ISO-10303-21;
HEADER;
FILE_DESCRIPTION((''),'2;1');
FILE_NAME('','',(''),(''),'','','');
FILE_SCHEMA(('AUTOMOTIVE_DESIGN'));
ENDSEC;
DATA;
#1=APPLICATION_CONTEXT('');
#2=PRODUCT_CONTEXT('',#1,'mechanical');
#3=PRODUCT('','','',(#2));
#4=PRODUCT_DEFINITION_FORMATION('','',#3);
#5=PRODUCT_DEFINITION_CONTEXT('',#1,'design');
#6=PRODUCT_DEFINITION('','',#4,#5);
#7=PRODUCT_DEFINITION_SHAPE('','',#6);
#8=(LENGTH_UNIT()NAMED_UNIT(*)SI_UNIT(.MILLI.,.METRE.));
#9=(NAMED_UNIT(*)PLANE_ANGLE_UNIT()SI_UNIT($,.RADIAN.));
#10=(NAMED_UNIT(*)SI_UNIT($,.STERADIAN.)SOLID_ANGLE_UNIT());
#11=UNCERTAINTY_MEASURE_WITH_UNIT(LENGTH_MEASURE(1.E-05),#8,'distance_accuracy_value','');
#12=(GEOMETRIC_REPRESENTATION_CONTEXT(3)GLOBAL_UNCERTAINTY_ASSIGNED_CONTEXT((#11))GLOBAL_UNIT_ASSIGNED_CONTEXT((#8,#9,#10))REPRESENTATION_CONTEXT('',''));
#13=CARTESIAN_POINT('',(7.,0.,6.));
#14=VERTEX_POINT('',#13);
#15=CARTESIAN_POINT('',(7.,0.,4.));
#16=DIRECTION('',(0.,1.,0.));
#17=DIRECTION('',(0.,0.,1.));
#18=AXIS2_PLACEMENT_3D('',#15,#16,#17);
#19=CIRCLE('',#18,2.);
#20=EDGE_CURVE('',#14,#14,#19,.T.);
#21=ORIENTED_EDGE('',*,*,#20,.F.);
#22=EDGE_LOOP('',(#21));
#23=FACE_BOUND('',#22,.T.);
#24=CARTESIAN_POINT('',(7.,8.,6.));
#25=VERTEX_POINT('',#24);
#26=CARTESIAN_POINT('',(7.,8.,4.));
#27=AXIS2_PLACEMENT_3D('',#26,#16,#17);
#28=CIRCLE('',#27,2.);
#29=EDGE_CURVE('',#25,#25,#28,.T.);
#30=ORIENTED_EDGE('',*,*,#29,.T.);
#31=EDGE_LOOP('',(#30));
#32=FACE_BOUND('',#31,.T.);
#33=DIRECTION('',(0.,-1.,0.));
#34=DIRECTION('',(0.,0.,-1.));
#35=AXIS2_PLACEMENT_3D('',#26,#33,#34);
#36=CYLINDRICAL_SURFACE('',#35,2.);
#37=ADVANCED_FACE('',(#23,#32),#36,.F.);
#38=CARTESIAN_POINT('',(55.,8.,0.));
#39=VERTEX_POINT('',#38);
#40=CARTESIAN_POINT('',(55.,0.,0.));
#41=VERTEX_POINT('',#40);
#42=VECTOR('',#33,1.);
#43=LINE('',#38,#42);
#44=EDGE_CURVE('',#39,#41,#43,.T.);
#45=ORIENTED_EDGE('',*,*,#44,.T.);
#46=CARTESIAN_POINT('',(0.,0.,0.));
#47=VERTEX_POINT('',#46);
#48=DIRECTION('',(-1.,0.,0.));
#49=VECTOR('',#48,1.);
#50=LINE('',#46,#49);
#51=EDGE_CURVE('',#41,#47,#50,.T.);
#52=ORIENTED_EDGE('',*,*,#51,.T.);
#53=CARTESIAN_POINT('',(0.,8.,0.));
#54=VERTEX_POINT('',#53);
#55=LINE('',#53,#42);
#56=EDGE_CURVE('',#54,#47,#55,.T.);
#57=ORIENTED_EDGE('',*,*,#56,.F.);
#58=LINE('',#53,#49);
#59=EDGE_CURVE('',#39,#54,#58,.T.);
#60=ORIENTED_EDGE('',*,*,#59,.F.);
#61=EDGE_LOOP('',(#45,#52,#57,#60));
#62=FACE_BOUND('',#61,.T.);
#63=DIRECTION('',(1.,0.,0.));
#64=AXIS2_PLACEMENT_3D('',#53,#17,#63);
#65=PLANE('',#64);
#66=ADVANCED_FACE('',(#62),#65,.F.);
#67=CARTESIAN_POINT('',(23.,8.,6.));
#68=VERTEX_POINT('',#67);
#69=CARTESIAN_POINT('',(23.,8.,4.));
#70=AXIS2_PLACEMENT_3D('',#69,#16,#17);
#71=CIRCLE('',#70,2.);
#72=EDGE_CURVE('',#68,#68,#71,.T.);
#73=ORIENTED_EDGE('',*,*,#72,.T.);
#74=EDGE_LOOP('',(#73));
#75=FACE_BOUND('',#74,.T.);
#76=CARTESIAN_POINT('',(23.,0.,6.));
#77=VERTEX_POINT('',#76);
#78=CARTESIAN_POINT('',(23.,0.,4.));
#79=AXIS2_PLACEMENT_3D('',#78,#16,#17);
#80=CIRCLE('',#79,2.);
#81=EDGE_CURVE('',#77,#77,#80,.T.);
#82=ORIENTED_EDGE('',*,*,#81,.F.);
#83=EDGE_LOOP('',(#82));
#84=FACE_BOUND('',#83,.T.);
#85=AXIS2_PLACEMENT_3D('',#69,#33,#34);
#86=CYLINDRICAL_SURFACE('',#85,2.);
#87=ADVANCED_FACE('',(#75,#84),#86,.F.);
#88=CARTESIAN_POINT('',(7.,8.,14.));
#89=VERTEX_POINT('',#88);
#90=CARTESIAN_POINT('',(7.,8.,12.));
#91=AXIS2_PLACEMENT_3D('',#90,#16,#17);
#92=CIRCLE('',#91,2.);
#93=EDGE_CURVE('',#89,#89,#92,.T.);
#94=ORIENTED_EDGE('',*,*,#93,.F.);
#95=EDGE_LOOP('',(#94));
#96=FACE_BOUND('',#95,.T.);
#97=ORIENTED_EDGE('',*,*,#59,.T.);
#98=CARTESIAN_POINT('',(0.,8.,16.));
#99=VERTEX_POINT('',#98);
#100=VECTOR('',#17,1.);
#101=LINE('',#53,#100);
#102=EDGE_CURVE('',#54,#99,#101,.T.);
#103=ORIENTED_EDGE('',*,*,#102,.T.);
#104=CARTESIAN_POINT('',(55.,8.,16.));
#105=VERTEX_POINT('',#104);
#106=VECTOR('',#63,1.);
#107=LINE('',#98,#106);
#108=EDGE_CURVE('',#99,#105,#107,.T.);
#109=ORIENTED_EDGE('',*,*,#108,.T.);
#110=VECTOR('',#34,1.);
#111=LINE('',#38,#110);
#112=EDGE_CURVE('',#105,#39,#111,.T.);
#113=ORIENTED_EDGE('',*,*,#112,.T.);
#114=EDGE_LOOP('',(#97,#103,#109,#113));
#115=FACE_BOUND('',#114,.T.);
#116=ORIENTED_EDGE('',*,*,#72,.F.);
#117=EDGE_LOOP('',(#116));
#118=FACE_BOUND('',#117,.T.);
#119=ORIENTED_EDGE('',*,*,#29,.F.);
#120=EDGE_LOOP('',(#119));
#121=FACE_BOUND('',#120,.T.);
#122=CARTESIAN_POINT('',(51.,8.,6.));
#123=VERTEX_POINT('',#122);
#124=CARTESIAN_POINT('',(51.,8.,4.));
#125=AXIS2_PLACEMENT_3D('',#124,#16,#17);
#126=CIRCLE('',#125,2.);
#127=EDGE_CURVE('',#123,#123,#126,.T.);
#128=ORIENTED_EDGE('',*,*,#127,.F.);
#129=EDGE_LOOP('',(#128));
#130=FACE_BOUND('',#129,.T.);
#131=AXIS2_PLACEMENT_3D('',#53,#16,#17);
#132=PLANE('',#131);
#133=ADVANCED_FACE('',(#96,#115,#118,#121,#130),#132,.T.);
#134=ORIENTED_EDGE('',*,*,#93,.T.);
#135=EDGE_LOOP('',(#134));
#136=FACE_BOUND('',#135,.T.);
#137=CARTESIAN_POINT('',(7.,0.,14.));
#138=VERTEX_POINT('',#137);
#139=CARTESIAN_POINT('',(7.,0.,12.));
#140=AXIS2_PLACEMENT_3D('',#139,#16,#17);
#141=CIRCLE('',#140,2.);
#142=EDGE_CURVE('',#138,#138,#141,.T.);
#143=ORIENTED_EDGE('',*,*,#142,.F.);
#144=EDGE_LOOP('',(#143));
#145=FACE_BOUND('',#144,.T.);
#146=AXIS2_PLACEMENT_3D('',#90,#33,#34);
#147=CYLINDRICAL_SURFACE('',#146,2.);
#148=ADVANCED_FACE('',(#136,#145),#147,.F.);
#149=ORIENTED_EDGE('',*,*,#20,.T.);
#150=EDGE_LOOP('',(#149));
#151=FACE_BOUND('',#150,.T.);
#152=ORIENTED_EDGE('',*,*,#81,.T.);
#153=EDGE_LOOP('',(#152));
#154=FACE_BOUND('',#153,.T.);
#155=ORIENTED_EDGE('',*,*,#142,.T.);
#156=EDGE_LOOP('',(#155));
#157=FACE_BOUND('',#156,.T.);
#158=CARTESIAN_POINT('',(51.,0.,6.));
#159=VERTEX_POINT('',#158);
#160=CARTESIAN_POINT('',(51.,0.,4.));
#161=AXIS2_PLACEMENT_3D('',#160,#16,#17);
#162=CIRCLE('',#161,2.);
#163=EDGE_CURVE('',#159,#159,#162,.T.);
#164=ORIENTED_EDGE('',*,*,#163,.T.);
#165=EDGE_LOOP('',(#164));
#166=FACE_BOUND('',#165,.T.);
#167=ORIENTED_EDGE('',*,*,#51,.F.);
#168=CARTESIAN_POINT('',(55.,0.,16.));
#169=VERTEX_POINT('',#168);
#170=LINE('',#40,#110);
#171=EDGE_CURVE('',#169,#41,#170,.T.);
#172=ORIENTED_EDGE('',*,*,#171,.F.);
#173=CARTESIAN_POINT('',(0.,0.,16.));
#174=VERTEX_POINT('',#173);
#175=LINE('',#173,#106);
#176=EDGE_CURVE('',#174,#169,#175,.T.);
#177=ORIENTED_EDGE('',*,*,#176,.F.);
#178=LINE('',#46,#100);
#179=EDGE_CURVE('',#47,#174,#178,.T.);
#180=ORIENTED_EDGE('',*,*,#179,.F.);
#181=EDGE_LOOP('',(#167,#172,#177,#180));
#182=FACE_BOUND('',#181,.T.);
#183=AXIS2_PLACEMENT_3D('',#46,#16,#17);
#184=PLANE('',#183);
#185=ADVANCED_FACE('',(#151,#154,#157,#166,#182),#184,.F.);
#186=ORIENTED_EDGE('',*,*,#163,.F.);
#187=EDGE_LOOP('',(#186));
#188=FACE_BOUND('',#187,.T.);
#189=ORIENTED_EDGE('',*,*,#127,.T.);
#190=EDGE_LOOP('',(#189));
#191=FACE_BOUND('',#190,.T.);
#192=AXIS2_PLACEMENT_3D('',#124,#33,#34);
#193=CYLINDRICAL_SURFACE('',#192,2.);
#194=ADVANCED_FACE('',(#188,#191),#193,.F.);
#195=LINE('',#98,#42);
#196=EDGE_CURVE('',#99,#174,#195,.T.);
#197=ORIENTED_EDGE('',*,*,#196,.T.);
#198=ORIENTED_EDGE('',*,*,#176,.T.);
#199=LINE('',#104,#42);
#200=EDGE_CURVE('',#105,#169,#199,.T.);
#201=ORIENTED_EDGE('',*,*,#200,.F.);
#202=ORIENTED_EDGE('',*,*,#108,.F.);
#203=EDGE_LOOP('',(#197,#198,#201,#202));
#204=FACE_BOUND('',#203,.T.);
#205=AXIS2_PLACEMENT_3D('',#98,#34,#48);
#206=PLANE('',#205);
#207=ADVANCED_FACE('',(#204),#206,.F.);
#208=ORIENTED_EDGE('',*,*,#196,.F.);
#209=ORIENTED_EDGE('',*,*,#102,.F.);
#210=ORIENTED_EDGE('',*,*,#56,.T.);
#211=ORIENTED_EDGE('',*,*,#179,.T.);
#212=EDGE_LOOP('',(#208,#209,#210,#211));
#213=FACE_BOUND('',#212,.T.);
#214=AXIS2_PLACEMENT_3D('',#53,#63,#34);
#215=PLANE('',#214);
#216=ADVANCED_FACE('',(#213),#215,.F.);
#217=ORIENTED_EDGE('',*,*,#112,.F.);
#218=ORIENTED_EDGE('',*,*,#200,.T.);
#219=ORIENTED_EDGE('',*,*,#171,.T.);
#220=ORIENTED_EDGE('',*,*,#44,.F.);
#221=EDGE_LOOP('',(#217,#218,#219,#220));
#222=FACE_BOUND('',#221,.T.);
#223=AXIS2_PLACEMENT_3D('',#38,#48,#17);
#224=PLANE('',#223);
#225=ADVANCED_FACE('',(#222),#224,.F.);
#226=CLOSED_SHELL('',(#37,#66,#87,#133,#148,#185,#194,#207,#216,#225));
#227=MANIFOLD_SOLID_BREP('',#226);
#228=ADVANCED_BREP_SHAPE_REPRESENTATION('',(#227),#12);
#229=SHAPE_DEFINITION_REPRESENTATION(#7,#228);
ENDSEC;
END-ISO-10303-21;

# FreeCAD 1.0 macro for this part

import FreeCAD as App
import Part
import Sketcher
Q = App.Units.Quantity


def add_polygon(sketch, points):
    """Adds a closed chain of lines whose ends are joined by coincident constraints."""
    first, n = sketch.GeometryCount, len(points)
    for a, b in zip(points, points[1:] + points[:1]):
        sketch.addGeometry(Part.LineSegment(App.Vector(*a, 0), App.Vector(*b, 0)), False)
    for i in range(n):
        sketch.addConstraint(Sketcher.Constraint("Coincident", first + i, 2, first + (i + 1) % n, 1))

doc = App.newDocument("Part")
body = doc.addObject("PartDesign::Body", "Body")

# Sketch on XZ plane
sketch1 = body.newObject("Sketcher::SketchObject", "Sketch")
sketch1.AttachmentSupport = (doc.getObject("XZ_Plane"), [""])
sketch1.MapMode = "FlatFace"
add_polygon(sketch1, [(0, 0), (0, 16), (55, 16), (55, 0)])  # lines 0-3
sketch1.addGeometry(Part.Circle(App.Vector(7, 12, 0), App.Vector(0, 0, 1), 2), False)  # 4
sketch1.addGeometry(Part.Circle(App.Vector(7, 4, 0), App.Vector(0, 0, 1), 2), False)  # 5
sketch1.addGeometry(Part.Circle(App.Vector(23, 4, 0), App.Vector(0, 0, 1), 2), False)  # 6
sketch1.addGeometry(Part.Circle(App.Vector(51, 4, 0), App.Vector(0, 0, 1), 2), False)  # 7
sketch1.addConstraint([
    Sketcher.Constraint("Vertical", 0),
    Sketcher.Constraint("Horizontal", 1),
    Sketcher.Constraint("Vertical", 2),
    Sketcher.Constraint("Horizontal", 3),
    Sketcher.Constraint("Coincident", 3, 2, -1, 1),
    Sketcher.Constraint("Equal", 4, 5),
    Sketcher.Constraint("Equal", 5, 6),
    Sketcher.Constraint("Equal", 6, 7),
    Sketcher.Constraint("Horizontal", 5, 3, 6, 3),
    Sketcher.Constraint("Horizontal", 6, 3, 7, 3),
    Sketcher.Constraint("Vertical", 4, 3, 5, 3),
    Sketcher.Constraint("Diameter", 4, Q("4 mm")),
    Sketcher.Constraint("DistanceX", 1, 1, 1, 2, Q("55 mm")),
    Sketcher.Constraint("DistanceY", 0, 1, 0, 2, Q("16 mm")),
    Sketcher.Constraint("DistanceX", -1, 1, 4, 3, Q("7 mm")),
    Sketcher.Constraint("DistanceY", -1, 1, 4, 3, Q("12 mm")),
    Sketcher.Constraint("DistanceY", -1, 1, 5, 3, Q("4 mm")),
    Sketcher.Constraint("DistanceX", -1, 1, 6, 3, Q("23 mm")),
    Sketcher.Constraint("DistanceX", -1, 1, 7, 3, Q("51 mm")),
])
pad1 = body.newObject("PartDesign::Pad", "Pad")
pad1.Profile = sketch1
pad1.Length = 8
pad1.Reversed = True

doc.recompute()
